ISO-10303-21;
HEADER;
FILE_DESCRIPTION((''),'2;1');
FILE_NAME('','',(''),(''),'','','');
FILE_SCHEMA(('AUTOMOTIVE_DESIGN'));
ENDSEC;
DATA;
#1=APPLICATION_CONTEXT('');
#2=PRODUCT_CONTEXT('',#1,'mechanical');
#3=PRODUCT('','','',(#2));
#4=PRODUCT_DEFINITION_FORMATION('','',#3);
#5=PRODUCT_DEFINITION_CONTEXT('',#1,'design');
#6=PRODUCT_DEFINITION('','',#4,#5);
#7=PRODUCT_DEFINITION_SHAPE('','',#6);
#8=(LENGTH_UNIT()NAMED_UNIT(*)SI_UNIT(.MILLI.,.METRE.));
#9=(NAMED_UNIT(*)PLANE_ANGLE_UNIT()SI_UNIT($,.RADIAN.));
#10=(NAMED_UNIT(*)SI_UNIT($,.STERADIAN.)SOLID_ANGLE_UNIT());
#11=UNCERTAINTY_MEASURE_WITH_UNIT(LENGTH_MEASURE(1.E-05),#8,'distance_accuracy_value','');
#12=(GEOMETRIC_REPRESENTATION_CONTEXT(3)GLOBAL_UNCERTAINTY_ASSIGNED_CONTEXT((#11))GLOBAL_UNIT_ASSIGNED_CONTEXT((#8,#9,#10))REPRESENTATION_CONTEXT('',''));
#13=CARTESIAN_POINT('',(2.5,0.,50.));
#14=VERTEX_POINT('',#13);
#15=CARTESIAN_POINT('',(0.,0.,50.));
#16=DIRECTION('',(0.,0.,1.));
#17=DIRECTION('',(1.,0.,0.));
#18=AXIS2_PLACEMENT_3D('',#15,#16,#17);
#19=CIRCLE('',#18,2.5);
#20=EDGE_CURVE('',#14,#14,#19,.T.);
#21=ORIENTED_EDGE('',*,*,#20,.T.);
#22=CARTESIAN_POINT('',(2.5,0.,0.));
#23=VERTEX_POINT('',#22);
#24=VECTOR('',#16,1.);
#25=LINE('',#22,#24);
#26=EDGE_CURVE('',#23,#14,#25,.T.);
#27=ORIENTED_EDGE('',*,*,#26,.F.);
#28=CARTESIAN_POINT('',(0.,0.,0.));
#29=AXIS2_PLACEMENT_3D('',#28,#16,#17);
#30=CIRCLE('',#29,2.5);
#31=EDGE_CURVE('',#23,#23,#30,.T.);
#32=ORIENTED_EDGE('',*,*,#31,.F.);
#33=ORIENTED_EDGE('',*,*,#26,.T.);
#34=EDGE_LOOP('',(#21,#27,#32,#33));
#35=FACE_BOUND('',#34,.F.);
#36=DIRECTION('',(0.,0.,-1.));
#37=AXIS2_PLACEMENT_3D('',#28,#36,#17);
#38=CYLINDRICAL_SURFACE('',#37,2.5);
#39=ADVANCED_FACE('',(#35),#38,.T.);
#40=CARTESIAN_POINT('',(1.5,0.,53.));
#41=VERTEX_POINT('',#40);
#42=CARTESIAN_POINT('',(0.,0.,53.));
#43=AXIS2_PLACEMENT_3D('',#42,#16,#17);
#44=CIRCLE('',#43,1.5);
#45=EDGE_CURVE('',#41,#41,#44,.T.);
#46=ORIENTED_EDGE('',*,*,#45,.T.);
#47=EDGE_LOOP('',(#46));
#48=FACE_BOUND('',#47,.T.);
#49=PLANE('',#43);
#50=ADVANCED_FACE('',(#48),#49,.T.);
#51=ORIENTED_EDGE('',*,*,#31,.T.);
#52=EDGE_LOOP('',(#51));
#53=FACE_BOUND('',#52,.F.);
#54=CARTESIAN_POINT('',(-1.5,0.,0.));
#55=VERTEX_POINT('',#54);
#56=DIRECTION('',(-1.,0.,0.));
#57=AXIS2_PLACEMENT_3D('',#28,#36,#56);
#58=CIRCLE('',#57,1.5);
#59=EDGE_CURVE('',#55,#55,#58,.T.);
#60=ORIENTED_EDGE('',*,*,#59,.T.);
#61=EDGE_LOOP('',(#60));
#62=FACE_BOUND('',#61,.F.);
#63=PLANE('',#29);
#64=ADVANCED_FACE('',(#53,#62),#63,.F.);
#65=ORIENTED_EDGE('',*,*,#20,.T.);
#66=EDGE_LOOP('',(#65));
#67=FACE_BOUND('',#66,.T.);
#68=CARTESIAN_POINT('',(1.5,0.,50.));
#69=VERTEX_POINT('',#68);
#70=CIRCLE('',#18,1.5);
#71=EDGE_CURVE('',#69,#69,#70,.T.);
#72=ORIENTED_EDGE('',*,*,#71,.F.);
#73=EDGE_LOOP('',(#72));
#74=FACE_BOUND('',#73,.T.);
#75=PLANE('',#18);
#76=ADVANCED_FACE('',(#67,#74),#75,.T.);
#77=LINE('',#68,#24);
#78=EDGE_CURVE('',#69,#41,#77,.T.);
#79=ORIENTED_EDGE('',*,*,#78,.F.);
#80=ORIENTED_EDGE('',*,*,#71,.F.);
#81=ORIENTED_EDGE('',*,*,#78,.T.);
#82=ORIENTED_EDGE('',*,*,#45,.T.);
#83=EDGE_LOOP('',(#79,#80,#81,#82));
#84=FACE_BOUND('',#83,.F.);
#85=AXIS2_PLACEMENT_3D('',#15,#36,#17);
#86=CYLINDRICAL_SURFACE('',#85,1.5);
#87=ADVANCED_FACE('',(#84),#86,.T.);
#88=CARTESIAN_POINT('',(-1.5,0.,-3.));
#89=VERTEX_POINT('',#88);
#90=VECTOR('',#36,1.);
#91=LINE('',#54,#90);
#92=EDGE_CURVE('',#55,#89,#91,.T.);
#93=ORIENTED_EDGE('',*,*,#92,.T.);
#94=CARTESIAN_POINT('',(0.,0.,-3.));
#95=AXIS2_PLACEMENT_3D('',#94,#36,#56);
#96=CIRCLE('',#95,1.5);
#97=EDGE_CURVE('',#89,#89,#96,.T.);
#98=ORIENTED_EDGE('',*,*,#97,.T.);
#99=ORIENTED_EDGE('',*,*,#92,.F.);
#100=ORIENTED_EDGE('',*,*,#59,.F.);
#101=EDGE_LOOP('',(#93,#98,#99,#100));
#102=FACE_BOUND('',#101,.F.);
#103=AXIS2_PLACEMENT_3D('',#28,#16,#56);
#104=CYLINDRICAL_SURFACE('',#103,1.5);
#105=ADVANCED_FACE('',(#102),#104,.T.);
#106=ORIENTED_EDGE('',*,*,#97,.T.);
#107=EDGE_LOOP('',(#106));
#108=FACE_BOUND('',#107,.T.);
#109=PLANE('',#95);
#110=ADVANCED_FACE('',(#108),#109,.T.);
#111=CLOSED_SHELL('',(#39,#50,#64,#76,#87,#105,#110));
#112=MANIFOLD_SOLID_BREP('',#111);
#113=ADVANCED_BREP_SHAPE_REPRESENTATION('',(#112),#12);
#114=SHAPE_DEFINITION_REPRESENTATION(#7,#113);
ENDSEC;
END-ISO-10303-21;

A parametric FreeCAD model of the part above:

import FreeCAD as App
import Part
import Sketcher
from FreeCAD import Vector

doc = App.newDocument("Part")
body = doc.addObject("PartDesign::Body", "Body")

sketch1 = body.newObject("Sketcher::SketchObject", "Sketch")
sketch1.AttachmentSupport = (doc.getObject("XY_Plane"), [""])
sketch1.MapMode = "FlatFace"
sketch1.addGeometry(Part.Circle(Vector(0, 0, 0), Vector(0, 0, 1), 2.5), False)
sketch1.addConstraint(Sketcher.Constraint("Coincident", 0, 3, -1, 1))
sketch1.addConstraint(Sketcher.Constraint("Diameter", 0, 5.0))
pad1 = body.newObject("PartDesign::Pad", "Pad")
pad1.Profile = sketch1
pad1.Length = 50

sketch2 = body.newObject("Sketcher::SketchObject", "Sketch001")
sketch2.AttachmentSupport = (doc.getObject("XY_Plane"), [""])
sketch2.MapMode = "FlatFace"
sketch2.AttachmentOffset = App.Placement(Vector(0, 0, 50), App.Rotation())
sketch2.addGeometry(Part.Circle(Vector(0, 0, 0), Vector(0, 0, 1), 1.5), False)
sketch2.addConstraint(Sketcher.Constraint("Coincident", 0, 3, -1, 1))
sketch2.addConstraint(Sketcher.Constraint("Diameter", 0, 3.0))
pad2 = body.newObject("PartDesign::Pad", "Pad001")
pad2.Profile = sketch2
pad2.Length = 3

sketch3 = body.newObject("Sketcher::SketchObject", "Sketch002")
sketch3.AttachmentSupport = (doc.getObject("XY_Plane"), [""])
sketch3.MapMode = "FlatFace"
sketch3.addGeometry(Part.Circle(Vector(0, 0, 0), Vector(0, 0, 1), 1.5), False)
sketch3.addConstraint(Sketcher.Constraint("Coincident", 0, 3, -1, 1))
sketch3.addConstraint(Sketcher.Constraint("Diameter", 0, 3.0))
pad3 = body.newObject("PartDesign::Pad", "Pad002")
pad3.Profile = sketch3
pad3.Length = 3
pad3.Reversed = True

doc.recompute()
